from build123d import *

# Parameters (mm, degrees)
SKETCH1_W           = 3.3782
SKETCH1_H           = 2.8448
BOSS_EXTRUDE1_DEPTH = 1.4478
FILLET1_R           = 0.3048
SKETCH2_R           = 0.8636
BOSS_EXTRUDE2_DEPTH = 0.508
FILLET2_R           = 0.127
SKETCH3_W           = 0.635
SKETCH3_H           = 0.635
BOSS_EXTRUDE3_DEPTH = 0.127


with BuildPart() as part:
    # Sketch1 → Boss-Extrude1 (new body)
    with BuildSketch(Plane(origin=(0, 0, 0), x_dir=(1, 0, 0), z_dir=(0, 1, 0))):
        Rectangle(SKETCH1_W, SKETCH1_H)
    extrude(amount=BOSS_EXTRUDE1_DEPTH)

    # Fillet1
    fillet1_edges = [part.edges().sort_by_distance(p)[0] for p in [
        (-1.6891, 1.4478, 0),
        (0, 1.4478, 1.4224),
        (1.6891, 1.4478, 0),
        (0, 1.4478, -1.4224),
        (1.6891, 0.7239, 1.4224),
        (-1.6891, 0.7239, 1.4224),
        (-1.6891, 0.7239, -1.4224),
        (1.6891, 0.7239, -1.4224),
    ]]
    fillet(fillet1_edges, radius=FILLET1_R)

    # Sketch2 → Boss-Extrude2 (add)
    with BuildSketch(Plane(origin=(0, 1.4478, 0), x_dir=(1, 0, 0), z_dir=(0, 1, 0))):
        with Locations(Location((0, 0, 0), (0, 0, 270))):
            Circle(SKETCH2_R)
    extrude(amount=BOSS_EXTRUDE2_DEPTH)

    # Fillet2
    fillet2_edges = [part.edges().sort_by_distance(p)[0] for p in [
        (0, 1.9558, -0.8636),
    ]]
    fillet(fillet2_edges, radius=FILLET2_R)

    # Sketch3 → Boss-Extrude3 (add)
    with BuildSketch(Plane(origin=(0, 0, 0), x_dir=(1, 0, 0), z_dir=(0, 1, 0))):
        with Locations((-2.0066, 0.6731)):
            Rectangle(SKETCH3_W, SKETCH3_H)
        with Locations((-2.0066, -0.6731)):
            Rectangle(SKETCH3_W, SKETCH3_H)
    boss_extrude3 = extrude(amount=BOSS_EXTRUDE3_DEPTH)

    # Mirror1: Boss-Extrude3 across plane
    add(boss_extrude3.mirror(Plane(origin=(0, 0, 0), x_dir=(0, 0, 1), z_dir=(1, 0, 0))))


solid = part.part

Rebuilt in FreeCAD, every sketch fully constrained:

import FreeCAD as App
import Part
import Sketcher
from FreeCAD import Vector
Q = App.Units.Quantity


def edges_at(feature, points):
    """Names of the edges that pass closest to the given points."""
    edges = feature.Shape.Edges
    near = lambda p: min(range(len(edges)), key=lambda i: edges[i].distToShape(Part.Vertex(*p))[0])
    return sorted({f"Edge{near(p) + 1}" for p in points})


def add_polygon(sketch, points):
    """Adds a closed chain of lines whose ends are joined by coincident constraints."""
    first, n = sketch.GeometryCount, len(points)
    for a, b in zip(points, points[1:] + points[:1]):
        sketch.addGeometry(Part.LineSegment(App.Vector(*a, 0), App.Vector(*b, 0)), False)
    for i in range(n):
        sketch.addConstraint(Sketcher.Constraint("Coincident", first + i, 2, first + (i + 1) % n, 1))

doc = App.newDocument("Part")
body = doc.addObject("PartDesign::Body", "Body")

# Sketch on XZ plane
sketch1 = body.newObject("Sketcher::SketchObject", "Sketch")
sketch1.AttachmentSupport = (doc.getObject("XZ_Plane"), [""])
sketch1.MapMode = "FlatFace"
add_polygon(sketch1, [(-1.6891, -1.4224), (-1.6891, 1.4224), (1.6891, 1.4224), (1.6891, -1.4224)])  # lines 0-3
sketch1.addConstraint([
    Sketcher.Constraint("Vertical", 0),
    Sketcher.Constraint("Horizontal", 1),
    Sketcher.Constraint("Vertical", 2),
    Sketcher.Constraint("Horizontal", 3),
    Sketcher.Constraint("Symmetric", 0, 2, 2, 2, -1, 1),
    Sketcher.Constraint("DistanceX", 1, 1, 1, 2, Q("0.133 in")),
    Sketcher.Constraint("DistanceY", 0, 1, 0, 2, Q("0.112 in")),
])
pad1 = body.newObject("PartDesign::Pad", "Pad")
pad1.Profile = sketch1
pad1.Length = Q("0.057 in")
pad1.Reversed = True
doc.recompute()

fillet = body.newObject("PartDesign::Fillet", "Fillet")
fillet.Base = (pad1, edges_at(pad1, [
    (-1.689, 1.448, 0),
    (0, 1.448, 1.422),
    (1.689, 1.448, 0),
    (0, 1.448, -1.422),
    (1.689, 0.724, 1.422),
    (-1.689, 0.724, 1.422),
    (-1.689, 0.724, -1.422),
    (1.689, 0.724, -1.422),
]))
fillet.Radius = Q("0.012 in")

# Sketch on XZ plane
sketch2 = body.newObject("Sketcher::SketchObject", "Sketch001")
sketch2.AttachmentSupport = (doc.getObject("XZ_Plane"), [""])
sketch2.MapMode = "FlatFace"
sketch2.AttachmentOffset = App.Placement(Vector(0, 0, -0.057 * 25.4), App.Rotation())
sketch2.addGeometry(Part.Circle(Vector(0, 0, 0), Vector(0, 0, 1), 0.8636), False)
sketch2.addConstraint([
    Sketcher.Constraint("Coincident", 0, 3, -1, 1),
    Sketcher.Constraint("Diameter", 0, Q("0.068 in")),
])
pad2 = body.newObject("PartDesign::Pad", "Pad001")
pad2.Profile = sketch2
pad2.Length = Q("0.02 in")
pad2.Reversed = True
doc.recompute()

fillet2 = body.newObject("PartDesign::Fillet", "Fillet001")
fillet2.Base = (pad2, edges_at(pad2, [(0, 1.956, -0.864)]))
fillet2.Radius = Q("0.005 in")

# Sketch on XZ plane
sketch3 = body.newObject("Sketcher::SketchObject", "Sketch002")
sketch3.AttachmentSupport = (doc.getObject("XZ_Plane"), [""])
sketch3.MapMode = "FlatFace"
add_polygon(sketch3, [(-2.3241, -0.9906), (-2.3241, -0.3556), (-1.6891, -0.3556), (-1.6891, -0.9906)])  # lines 0-3
add_polygon(sketch3, [(-2.3241, 0.3556), (-2.3241, 0.9906), (-1.6891, 0.9906), (-1.6891, 0.3556)])  # lines 4-7
sketch3.addConstraint([
    Sketcher.Constraint("Vertical", 0),
    Sketcher.Constraint("Horizontal", 1),
    Sketcher.Constraint("Vertical", 2),
    Sketcher.Constraint("Horizontal", 3),
    Sketcher.Constraint("Vertical", 4),
    Sketcher.Constraint("Horizontal", 5),
    Sketcher.Constraint("Vertical", 6),
    Sketcher.Constraint("Horizontal", 7),
    Sketcher.Constraint("Symmetric", 3, 2, 4, 2, -1),
    Sketcher.Constraint("Symmetric", 1, 2, 6, 2, -1),
    Sketcher.Constraint("Equal", 7, 0),
    Sketcher.Constraint("DistanceX", 1, 1, 1, 2, Q("0.025 in")),
    Sketcher.Constraint("DistanceY", 0, 2, -1, 1, Q("0.014 in")),
    Sketcher.Constraint("DistanceX", 0, 2, -1, 1, Q("0.0915 in")),
])
pad3 = body.newObject("PartDesign::Pad", "Pad002")
pad3.Profile = sketch3
pad3.Length = Q("0.005 in")
pad3.Reversed = True
doc.recompute()

mirrored = body.newObject("PartDesign::Mirrored", "Mirrored")
mirrored.Originals = [pad3]
mirrored.MirrorPlane = (doc.getObject("YZ_Plane"), [""])
body.Tip = mirrored

doc.recompute()
